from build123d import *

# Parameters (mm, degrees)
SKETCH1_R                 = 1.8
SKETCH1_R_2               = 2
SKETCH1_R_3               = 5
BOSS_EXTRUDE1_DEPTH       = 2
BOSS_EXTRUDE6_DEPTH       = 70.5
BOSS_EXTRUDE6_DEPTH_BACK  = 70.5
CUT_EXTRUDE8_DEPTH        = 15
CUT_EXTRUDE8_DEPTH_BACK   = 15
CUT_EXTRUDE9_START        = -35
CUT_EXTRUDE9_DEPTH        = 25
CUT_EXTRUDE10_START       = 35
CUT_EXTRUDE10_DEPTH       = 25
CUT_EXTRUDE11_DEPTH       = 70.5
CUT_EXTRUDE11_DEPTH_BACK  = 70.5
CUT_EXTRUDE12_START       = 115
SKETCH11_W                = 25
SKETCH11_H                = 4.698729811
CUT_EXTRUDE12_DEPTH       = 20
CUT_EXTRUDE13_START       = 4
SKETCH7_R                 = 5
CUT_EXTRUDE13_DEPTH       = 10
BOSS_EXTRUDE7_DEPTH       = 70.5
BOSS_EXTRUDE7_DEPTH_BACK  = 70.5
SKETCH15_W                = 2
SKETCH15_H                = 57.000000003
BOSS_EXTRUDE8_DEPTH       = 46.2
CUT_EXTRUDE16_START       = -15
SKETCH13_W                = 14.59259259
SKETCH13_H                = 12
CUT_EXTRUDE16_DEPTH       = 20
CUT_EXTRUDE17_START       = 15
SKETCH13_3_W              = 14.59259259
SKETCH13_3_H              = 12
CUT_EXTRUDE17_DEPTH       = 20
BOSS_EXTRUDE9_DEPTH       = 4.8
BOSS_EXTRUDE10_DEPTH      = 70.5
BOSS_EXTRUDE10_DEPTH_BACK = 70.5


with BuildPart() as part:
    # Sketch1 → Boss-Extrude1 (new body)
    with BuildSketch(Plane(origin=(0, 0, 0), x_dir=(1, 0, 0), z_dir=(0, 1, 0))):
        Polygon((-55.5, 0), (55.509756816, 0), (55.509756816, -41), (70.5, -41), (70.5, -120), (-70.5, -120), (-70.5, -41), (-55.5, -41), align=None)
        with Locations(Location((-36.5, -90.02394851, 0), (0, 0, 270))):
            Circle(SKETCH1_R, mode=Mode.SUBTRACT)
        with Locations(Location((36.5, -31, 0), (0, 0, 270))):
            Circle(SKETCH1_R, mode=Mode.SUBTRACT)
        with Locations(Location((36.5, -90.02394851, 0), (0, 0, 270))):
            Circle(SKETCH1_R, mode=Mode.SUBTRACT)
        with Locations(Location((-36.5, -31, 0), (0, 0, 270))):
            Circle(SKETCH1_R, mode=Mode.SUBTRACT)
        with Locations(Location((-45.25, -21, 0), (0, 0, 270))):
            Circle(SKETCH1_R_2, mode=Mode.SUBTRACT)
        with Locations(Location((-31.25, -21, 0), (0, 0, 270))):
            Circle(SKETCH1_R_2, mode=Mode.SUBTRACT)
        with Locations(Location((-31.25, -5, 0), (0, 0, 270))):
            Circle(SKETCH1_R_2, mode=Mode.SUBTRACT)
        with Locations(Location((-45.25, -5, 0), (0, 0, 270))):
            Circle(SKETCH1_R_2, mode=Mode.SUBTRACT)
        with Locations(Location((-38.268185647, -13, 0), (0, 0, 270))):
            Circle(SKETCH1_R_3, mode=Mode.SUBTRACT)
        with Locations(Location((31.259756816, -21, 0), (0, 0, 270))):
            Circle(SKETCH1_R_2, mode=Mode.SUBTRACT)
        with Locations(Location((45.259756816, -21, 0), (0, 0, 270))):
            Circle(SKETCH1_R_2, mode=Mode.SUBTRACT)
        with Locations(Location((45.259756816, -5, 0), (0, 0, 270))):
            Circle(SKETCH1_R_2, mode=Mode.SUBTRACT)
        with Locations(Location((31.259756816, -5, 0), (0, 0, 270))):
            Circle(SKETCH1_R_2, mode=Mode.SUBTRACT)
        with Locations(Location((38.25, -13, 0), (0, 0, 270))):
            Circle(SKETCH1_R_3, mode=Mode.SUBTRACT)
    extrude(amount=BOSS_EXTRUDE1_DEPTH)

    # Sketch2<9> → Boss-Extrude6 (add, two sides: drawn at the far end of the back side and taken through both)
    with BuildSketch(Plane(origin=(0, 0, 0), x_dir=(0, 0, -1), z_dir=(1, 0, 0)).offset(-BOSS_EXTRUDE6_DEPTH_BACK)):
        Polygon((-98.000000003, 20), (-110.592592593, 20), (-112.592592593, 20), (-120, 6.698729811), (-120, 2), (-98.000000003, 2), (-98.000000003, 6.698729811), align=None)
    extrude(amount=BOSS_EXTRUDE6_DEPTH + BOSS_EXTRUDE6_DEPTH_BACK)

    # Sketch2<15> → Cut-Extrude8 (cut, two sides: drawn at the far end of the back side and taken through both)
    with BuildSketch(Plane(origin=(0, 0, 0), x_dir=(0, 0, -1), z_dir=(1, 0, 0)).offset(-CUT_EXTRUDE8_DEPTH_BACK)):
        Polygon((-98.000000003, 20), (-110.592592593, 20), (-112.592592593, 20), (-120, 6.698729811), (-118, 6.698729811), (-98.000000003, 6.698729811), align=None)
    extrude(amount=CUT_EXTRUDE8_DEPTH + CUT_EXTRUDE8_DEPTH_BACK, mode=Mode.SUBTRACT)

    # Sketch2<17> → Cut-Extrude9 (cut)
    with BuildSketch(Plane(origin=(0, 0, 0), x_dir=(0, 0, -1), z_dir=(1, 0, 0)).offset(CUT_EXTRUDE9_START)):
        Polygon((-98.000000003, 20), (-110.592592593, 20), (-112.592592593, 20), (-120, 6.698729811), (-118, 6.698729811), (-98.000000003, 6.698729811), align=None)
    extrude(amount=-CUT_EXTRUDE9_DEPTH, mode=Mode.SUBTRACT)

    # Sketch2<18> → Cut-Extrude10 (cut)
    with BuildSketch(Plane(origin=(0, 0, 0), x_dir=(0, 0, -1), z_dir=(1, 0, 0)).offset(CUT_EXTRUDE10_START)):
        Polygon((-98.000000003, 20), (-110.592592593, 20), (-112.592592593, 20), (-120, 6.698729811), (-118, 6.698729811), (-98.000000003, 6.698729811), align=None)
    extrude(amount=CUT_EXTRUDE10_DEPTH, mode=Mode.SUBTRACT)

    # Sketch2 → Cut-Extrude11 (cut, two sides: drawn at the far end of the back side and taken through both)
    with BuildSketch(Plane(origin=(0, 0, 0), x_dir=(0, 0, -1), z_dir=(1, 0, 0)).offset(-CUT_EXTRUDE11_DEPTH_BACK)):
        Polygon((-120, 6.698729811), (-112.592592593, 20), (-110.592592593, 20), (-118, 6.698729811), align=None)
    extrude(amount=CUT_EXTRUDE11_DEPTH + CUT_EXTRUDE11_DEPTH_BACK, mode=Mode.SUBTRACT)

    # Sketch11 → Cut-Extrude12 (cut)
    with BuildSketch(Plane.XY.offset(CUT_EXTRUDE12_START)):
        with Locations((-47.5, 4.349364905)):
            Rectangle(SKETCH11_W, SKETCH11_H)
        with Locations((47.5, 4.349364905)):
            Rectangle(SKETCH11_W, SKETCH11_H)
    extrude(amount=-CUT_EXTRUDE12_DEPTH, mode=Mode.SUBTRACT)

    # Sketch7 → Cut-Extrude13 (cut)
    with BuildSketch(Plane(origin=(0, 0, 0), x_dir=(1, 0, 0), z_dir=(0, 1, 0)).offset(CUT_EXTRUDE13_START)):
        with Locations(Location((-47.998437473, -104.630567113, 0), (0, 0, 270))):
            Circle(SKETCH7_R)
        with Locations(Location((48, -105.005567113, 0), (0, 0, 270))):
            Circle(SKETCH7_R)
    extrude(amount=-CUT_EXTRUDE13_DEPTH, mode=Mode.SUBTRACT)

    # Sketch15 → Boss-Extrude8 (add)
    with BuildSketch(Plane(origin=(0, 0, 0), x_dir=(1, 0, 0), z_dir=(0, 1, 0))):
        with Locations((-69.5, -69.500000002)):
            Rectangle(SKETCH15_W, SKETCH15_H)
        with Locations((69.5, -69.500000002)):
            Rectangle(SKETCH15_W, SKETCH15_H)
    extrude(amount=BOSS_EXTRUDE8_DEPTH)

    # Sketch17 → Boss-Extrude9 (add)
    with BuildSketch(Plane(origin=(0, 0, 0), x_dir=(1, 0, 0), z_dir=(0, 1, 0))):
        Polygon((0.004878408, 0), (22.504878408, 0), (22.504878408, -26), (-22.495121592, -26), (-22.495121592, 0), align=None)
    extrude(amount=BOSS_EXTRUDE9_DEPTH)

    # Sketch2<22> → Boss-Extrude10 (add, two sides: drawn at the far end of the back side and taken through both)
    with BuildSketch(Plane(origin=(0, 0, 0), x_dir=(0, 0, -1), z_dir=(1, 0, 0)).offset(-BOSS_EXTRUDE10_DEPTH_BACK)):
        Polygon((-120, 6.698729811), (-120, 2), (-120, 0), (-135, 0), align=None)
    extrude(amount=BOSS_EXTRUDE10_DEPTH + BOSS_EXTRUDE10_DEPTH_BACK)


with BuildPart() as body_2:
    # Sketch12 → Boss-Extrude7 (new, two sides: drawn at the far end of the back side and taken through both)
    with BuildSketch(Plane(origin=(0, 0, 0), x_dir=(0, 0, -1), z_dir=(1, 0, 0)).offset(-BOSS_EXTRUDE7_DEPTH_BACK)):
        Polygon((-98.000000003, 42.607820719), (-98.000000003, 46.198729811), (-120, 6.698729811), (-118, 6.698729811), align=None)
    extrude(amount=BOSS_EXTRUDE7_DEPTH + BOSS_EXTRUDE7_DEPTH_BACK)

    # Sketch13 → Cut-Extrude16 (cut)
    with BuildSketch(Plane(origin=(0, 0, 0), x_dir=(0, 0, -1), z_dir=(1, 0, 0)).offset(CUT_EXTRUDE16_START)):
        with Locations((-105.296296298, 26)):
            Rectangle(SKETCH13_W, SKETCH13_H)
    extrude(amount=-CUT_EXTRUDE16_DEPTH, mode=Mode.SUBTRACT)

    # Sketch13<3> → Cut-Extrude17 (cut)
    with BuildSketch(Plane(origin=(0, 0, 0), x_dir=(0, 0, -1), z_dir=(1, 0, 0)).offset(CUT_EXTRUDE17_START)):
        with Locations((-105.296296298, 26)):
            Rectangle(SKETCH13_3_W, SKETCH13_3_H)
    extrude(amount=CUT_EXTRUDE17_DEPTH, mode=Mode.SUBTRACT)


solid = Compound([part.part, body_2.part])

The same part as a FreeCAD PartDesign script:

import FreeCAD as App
import Part
import Sketcher

V = App.Vector


def add_polygon(sketch, points):
    """Adds a closed chain of lines whose ends are joined by coincident constraints."""
    first, n = sketch.GeometryCount, len(points)
    for a, b in zip(points, points[1:] + points[:1]):
        sketch.addGeometry(Part.LineSegment(App.Vector(*a, 0), App.Vector(*b, 0)), False)
    for i in range(n):
        sketch.addConstraint(Sketcher.Constraint("Coincident", first + i, 2, first + (i + 1) % n, 1))

doc = App.newDocument("Part")
body = doc.addObject("PartDesign::Body", "Body")

# Sketch on XZ plane
sketch1 = doc.addObject("Sketcher::SketchObject", "Sketch")
body.addObject(sketch1)
sketch1.AttachmentSupport = (doc.XZ_Plane, [""])
sketch1.MapMode = "FlatFace"
add_polygon(sketch1, [(55.5, 0), (-55.5, 0), (-55.5, 41), (-70.5, 41), (-70.5, 120), (70.5, 120), (70.5, 41), (55.5, 41)])  # lines 0-7
sketch1.addGeometry(Part.Circle(V(36.5, 90, 0), V(0, 0, 1), 1.8), False)  # 8
sketch1.addGeometry(Part.Circle(V(-36.5, 90, 0), V(0, 0, 1), 1.8), False)  # 9
sketch1.addGeometry(Part.Circle(V(36.5, 31, 0), V(0, 0, 1), 1.8), False)  # 10
sketch1.addGeometry(Part.Circle(V(45.3, 21, 0), V(0, 0, 1), 2), False)  # 11
sketch1.addGeometry(Part.Circle(V(31.3, 21, 0), V(0, 0, 1), 2), False)  # 12
sketch1.addGeometry(Part.Circle(V(38.2, 13, 0), V(0, 0, 1), 5), False)  # 13
sketch1.addGeometry(Part.Circle(V(45.3, 5, 0), V(0, 0, 1), 2), False)  # 14
sketch1.addGeometry(Part.Circle(V(31.3, 5, 0), V(0, 0, 1), 2), False)  # 15
sketch1.addGeometry(Part.Circle(V(-36.5, 31, 0), V(0, 0, 1), 1.8), False)  # 16
sketch1.addGeometry(Part.Circle(V(-31.2, 21, 0), V(0, 0, 1), 2), False)  # 17
sketch1.addGeometry(Part.Circle(V(-45.2, 21, 0), V(0, 0, 1), 2), False)  # 18
sketch1.addGeometry(Part.Circle(V(-31.2, 5, 0), V(0, 0, 1), 2), False)  # 19
sketch1.addGeometry(Part.Circle(V(-38.3, 13, 0), V(0, 0, 1), 5), False)  # 20
sketch1.addGeometry(Part.Circle(V(-45.2, 5, 0), V(0, 0, 1), 2), False)  # 21
sketch1.addConstraint([
    Sketcher.Constraint("Horizontal", 0),
    Sketcher.Constraint("Vertical", 1),
    Sketcher.Constraint("Horizontal", 2),
    Sketcher.Constraint("Vertical", 3),
    Sketcher.Constraint("Horizontal", 4),
    Sketcher.Constraint("Vertical", 5),
    Sketcher.Constraint("Horizontal", 6),
    Sketcher.Constraint("Vertical", 7),
    Sketcher.Constraint("Equal", 8, 9),
    Sketcher.Constraint("Equal", 9, 10),
    Sketcher.Constraint("Equal", 11, 12),
    Sketcher.Constraint("Equal", 12, 14),
    Sketcher.Constraint("Equal", 14, 15),
    Sketcher.Constraint("Equal", 10, 16),
    Sketcher.Constraint("Equal", 15, 17),
    Sketcher.Constraint("Equal", 17, 18),
    Sketcher.Constraint("Equal", 18, 19),
    Sketcher.Constraint("Equal", 13, 20),
    Sketcher.Constraint("Equal", 19, 21),
    Sketcher.Constraint("Symmetric", 8, 3, 9, 3, -2),
    Sketcher.Constraint("Symmetric", 10, 3, 16, 3, -2),
    Sketcher.Constraint("Symmetric", 2, 2, 5, 2, -2),
    Sketcher.Constraint("PointOnObject", 0, 2, -1),
    Sketcher.Constraint("Horizontal", 11, 3, 12, 3),
    Sketcher.Constraint("Horizontal", 14, 3, 15, 3),
    Sketcher.Constraint("Horizontal", 12, 3, 17, 3),
    Sketcher.Constraint("Horizontal", 17, 3, 18, 3),
    Sketcher.Constraint("Horizontal", 15, 3, 19, 3),
    Sketcher.Constraint("Horizontal", 13, 3, 20, 3),
    Sketcher.Constraint("Horizontal", 19, 3, 21, 3),
    Sketcher.Constraint("Vertical", 8, 3, 10, 3),
    Sketcher.Constraint("Vertical", 11, 3, 14, 3),
    Sketcher.Constraint("Vertical", 12, 3, 15, 3),
    Sketcher.Constraint("Vertical", 17, 3, 19, 3),
    Sketcher.Constraint("Vertical", 18, 3, 21, 3),
    Sketcher.Constraint("Diameter", 11, 4.0),
    Sketcher.Constraint("Diameter", 13, 10.0),
    Sketcher.Constraint("Diameter", 8, 3.6),
    Sketcher.Constraint("DistanceX", 2, 2, 2, 1, 15.0),
    Sketcher.Constraint("DistanceX", 4, 1, 4, 2, 141.0),
    Sketcher.Constraint("DistanceY", 1, 1, 1, 2, 41.0),
    Sketcher.Constraint("DistanceY", 3, 1, 3, 2, 79.0),
    Sketcher.Constraint("DistanceY", -1, 1, 10, 3, 31.0),
    Sketcher.Constraint("DistanceY", -1, 1, 11, 3, 21.0),
    Sketcher.Constraint("DistanceY", -1, 1, 13, 3, 13.0),
    Sketcher.Constraint("DistanceY", -1, 1, 14, 3, 5.0),
    Sketcher.Constraint("DistanceX", 9, 3, 8, 3, 73.0),
    Sketcher.Constraint("DistanceX", 12, 3, 11, 3, 14.0),
    Sketcher.Constraint("DistanceX", 18, 3, 17, 3, 14.0),
    Sketcher.Constraint("DistanceX", -1, 1, 13, 3, 38.25),
    Sketcher.Constraint("DistanceX", 17, 3, -1, 1, 31.25),
    Sketcher.Constraint("DistanceX", 11, 3, 6, 2, 10.25),
    Sketcher.Constraint("DistanceX", 0, 2, 0, 1, 111.009757),
    Sketcher.Constraint("DistanceY", -1, 1, 8, 3, 90.023949),
    Sketcher.Constraint("DistanceX", 20, 3, -1, 1, 38.268186),
])
pad1 = doc.addObject("PartDesign::Pad", "Pad")
body.addObject(pad1)
pad1.Profile = sketch1
pad1.Length = 2
pad1.Reversed = True

# Sketch on YZ plane
sketch2 = doc.addObject("Sketcher::SketchObject", "Sketch001")
body.addObject(sketch2)
sketch2.AttachmentSupport = (doc.YZ_Plane, [""])
sketch2.MapMode = "FlatFace"
add_polygon(sketch2, [(20, 98), (20, 112.6), (6.7, 120), (2, 120), (2, 98)])  # lines 0-4
sketch2.addConstraint([
    Sketcher.Constraint("Vertical", 0),
    Sketcher.Constraint("Horizontal", 2),
    Sketcher.Constraint("Vertical", 3),
    Sketcher.Constraint("Horizontal", 4),
    Sketcher.Constraint("DistanceX", 4, 1, 4, 2, 18.0),
    Sketcher.Constraint("DistanceY", 3, 2, 3, 1, 22.0),
    Sketcher.Constraint("DistanceX", -1, 1, 0, 2, 20.0),
    Sketcher.Constraint("DistanceY", -1, 1, 1, 2, 120.0),
    Sketcher.Constraint("DistanceX", 2, 2, 2, 1, 4.69873),
    Sketcher.Constraint("DistanceY", 0, 1, 0, 2, 14.592593),
])
pad2 = doc.addObject("PartDesign::Pad", "Pad001")
body.addObject(pad2)
pad2.Profile = sketch2
pad2.Type = "TwoLengths"
pad2.Length = 70.5
pad2.Length2 = 70.5

# Sketch on YZ plane
sketch3 = doc.addObject("Sketcher::SketchObject", "Sketch002")
body.addObject(sketch3)
sketch3.AttachmentSupport = (doc.YZ_Plane, [""])
sketch3.MapMode = "FlatFace"
add_polygon(sketch3, [(20, 98), (20, 113), (7, 120), (7, 98)])  # lines 0-3
sketch3.addConstraint([
    Sketcher.Constraint("Vertical", 0),
    Sketcher.Constraint("Vertical", 2),
    Sketcher.Constraint("Horizontal", 3),
    Sketcher.Constraint("DistanceY", 2, 2, 2, 1, 22.0),
    Sketcher.Constraint("DistanceX", -1, 1, 0, 2, 20.0),
    Sketcher.Constraint("DistanceY", -1, 1, 1, 2, 120.0),
    Sketcher.Constraint("DistanceX", 3, 1, 3, 2, 13.30127),
    Sketcher.Constraint("DistanceY", 0, 1, 0, 2, 14.592593),
])
pocket1 = doc.addObject("PartDesign::Pocket", "Pocket")
body.addObject(pocket1)
pocket1.Profile = sketch3
pocket1.Type = "TwoLengths"
pocket1.Length = 15
pocket1.Length2 = 15
pocket1.Reversed = True

# Sketch on YZ plane
sketch4 = doc.addObject("Sketcher::SketchObject", "Sketch003")
body.addObject(sketch4)
sketch4.AttachmentSupport = (doc.YZ_Plane, [""])
sketch4.MapMode = "FlatFace"
sketch4.AttachmentOffset = App.Placement(V(0, 0, -35), App.Rotation())
add_polygon(sketch4, [(20, 98), (20, 113), (7, 120), (7, 98)])  # lines 0-3
sketch4.addConstraint([
    Sketcher.Constraint("Vertical", 0),
    Sketcher.Constraint("Vertical", 2),
    Sketcher.Constraint("Horizontal", 3),
    Sketcher.Constraint("DistanceY", 2, 2, 2, 1, 22.0),
    Sketcher.Constraint("DistanceX", -1, 1, 0, 2, 20.0),
    Sketcher.Constraint("DistanceY", -1, 1, 1, 2, 120.0),
    Sketcher.Constraint("DistanceX", 3, 1, 3, 2, 13.30127),
    Sketcher.Constraint("DistanceY", 0, 1, 0, 2, 14.592593),
])
pocket2 = doc.addObject("PartDesign::Pocket", "Pocket001")
body.addObject(pocket2)
pocket2.Profile = sketch4
pocket2.Length = 25

# Sketch on YZ plane
sketch5 = doc.addObject("Sketcher::SketchObject", "Sketch004")
body.addObject(sketch5)
sketch5.AttachmentSupport = (doc.YZ_Plane, [""])
sketch5.MapMode = "FlatFace"
sketch5.AttachmentOffset = App.Placement(V(0, 0, 35), App.Rotation())
add_polygon(sketch5, [(20, 98), (20, 113), (7, 120), (7, 98)])  # lines 0-3
sketch5.addConstraint([
    Sketcher.Constraint("Vertical", 0),
    Sketcher.Constraint("Vertical", 2),
    Sketcher.Constraint("Horizontal", 3),
    Sketcher.Constraint("DistanceY", 2, 2, 2, 1, 22.0),
    Sketcher.Constraint("DistanceX", -1, 1, 0, 2, 20.0),
    Sketcher.Constraint("DistanceY", -1, 1, 1, 2, 120.0),
    Sketcher.Constraint("DistanceX", 3, 1, 3, 2, 13.30127),
    Sketcher.Constraint("DistanceY", 0, 1, 0, 2, 14.592593),
])
pocket3 = doc.addObject("PartDesign::Pocket", "Pocket002")
body.addObject(pocket3)
pocket3.Profile = sketch5
pocket3.Length = 25
pocket3.Reversed = True

# Sketch on YZ plane
sketch6 = doc.addObject("Sketcher::SketchObject", "Sketch005")
body.addObject(sketch6)
sketch6.AttachmentSupport = (doc.YZ_Plane, [""])
sketch6.MapMode = "FlatFace"
add_polygon(sketch6, [(20, 112.6), (6.7, 120), (6.7, 118), (20, 110.6)])  # lines 0-3
sketch6.addConstraint([
    Sketcher.Constraint("Vertical", 1),
    Sketcher.Constraint("Vertical", 3),
    Sketcher.Constraint("Parallel", 0, 2),
    Sketcher.Constraint("DistanceY", 1, 2, 1, 1, 2.0),
    Sketcher.Constraint("DistanceY", -1, 1, 0, 2, 120.0),
    Sketcher.Constraint("DistanceX", -1, 1, 2, 2, 20.0),
    Sketcher.Constraint("DistanceX", -1, 1, 0, 2, 6.69873),
    Sketcher.Constraint("Distance", 0, 15.224765),
])
pocket4 = doc.addObject("PartDesign::Pocket", "Pocket003")
body.addObject(pocket4)
pocket4.Profile = sketch6
pocket4.Type = "ThroughAll"
pocket4.Midplane = True

# Sketch on XY plane
sketch7 = doc.addObject("Sketcher::SketchObject", "Sketch006")
body.addObject(sketch7)
sketch7.AttachmentSupport = (doc.XY_Plane, [""])
sketch7.MapMode = "FlatFace"
sketch7.AttachmentOffset = App.Placement(V(0, 0, 115), App.Rotation())
add_polygon(sketch7, [(-60, 6.7), (-60, 2), (-35, 2), (-35, 6.7)])  # lines 0-3
add_polygon(sketch7, [(35, 6.7), (35, 2), (60, 2), (60, 6.7)])  # lines 4-7
sketch7.addConstraint([
    Sketcher.Constraint("Vertical", 0),
    Sketcher.Constraint("Horizontal", 1),
    Sketcher.Constraint("Vertical", 2),
    Sketcher.Constraint("Horizontal", 3),
    Sketcher.Constraint("Vertical", 4),
    Sketcher.Constraint("Horizontal", 5),
    Sketcher.Constraint("Vertical", 6),
    Sketcher.Constraint("Horizontal", 7),
    Sketcher.Constraint("Symmetric", 1, 2, 4, 2, -2),
    Sketcher.Constraint("Symmetric", 3, 2, 6, 2, -2),
    Sketcher.Constraint("DistanceX", 1, 1, 1, 2, 25.0),
    Sketcher.Constraint("DistanceX", 0, 2, -1, 1, 60.0),
    Sketcher.Constraint("DistanceY", -1, 1, 0, 2, 2.0),
    Sketcher.Constraint("DistanceY", 0, 2, 0, 1, 4.69873),
])
pocket5 = doc.addObject("PartDesign::Pocket", "Pocket004")
body.addObject(pocket5)
pocket5.Profile = sketch7
pocket5.Length = 20

# Sketch on XZ plane
sketch8 = doc.addObject("Sketcher::SketchObject", "Sketch007")
body.addObject(sketch8)
sketch8.AttachmentSupport = (doc.XZ_Plane, [""])
sketch8.MapMode = "FlatFace"
sketch8.AttachmentOffset = App.Placement(V(0, 0, -4), App.Rotation())
sketch8.addGeometry([
    Part.Circle(V(-48, 105, 0), V(0, 0, 1), 5),
    Part.Circle(V(48, 105, 0), V(0, 0, 1), 5),
], False)
sketch8.addConstraint([
    Sketcher.Constraint("Equal", 0, 1),
    Sketcher.Constraint("Diameter", 0, 10.0),
    Sketcher.Constraint("DistanceX", -1, 1, 1, 3, 48.0),
    Sketcher.Constraint("DistanceY", 0, 3, 1, 3, 0.375),
    Sketcher.Constraint("DistanceX", 0, 3, -1, 1, 47.998437),
    Sketcher.Constraint("DistanceY", -1, 1, 0, 3, 104.630567),
])
pocket6 = doc.addObject("PartDesign::Pocket", "Pocket005")
body.addObject(pocket6)
pocket6.Profile = sketch8
pocket6.Length = 10
pocket6.Reversed = True

# Sketch on XZ plane
sketch9 = doc.addObject("Sketcher::SketchObject", "Sketch008")
body.addObject(sketch9)
sketch9.AttachmentSupport = (doc.XZ_Plane, [""])
sketch9.MapMode = "FlatFace"
add_polygon(sketch9, [(-70.5, 41), (-70.5, 98), (-68.5, 98), (-68.5, 41)])  # lines 0-3
add_polygon(sketch9, [(68.5, 41), (68.5, 98), (70.5, 98), (70.5, 41)])  # lines 4-7
sketch9.addConstraint([
    Sketcher.Constraint("Vertical", 0),
    Sketcher.Constraint("Horizontal", 1),
    Sketcher.Constraint("Vertical", 2),
    Sketcher.Constraint("Horizontal", 3),
    Sketcher.Constraint("Vertical", 4),
    Sketcher.Constraint("Horizontal", 5),
    Sketcher.Constraint("Vertical", 6),
    Sketcher.Constraint("Horizontal", 7),
    Sketcher.Constraint("Symmetric", 1, 2, 4, 2, -2),
    Sketcher.Constraint("Symmetric", 3, 2, 6, 2, -2),
    Sketcher.Constraint("DistanceX", 1, 1, 1, 2, 2.0),
    Sketcher.Constraint("DistanceY", 0, 1, 0, 2, 57.0),
    Sketcher.Constraint("DistanceY", -1, 1, 0, 2, 98.0),
    Sketcher.Constraint("DistanceX", 1, 2, 4, 2, 137.0),
])
pad3 = doc.addObject("PartDesign::Pad", "Pad002")
body.addObject(pad3)
pad3.Profile = sketch9
pad3.Length = 46.2
pad3.Reversed = True

# Sketch on XZ plane
sketch10 = doc.addObject("Sketcher::SketchObject", "Sketch009")
body.addObject(sketch10)
sketch10.AttachmentSupport = (doc.XZ_Plane, [""])
sketch10.MapMode = "FlatFace"
add_polygon(sketch10, [(23, 0), (-22, 0), (-22, 26), (23, 26)])  # lines 0-3
sketch10.addConstraint([
    Sketcher.Constraint("Horizontal", 0),
    Sketcher.Constraint("Vertical", 1),
    Sketcher.Constraint("Horizontal", 2),
    Sketcher.Constraint("Vertical", 3),
    Sketcher.Constraint("PointOnObject", 0, 2, -1),
    Sketcher.Constraint("DistanceX", 0, 2, 0, 1, 45.0),
    Sketcher.Constraint("DistanceY", 1, 1, 1, 2, 26.0),
    Sketcher.Constraint("DistanceX", 0, 2, -1, 1, 22.495122),
])
pad4 = doc.addObject("PartDesign::Pad", "Pad003")
body.addObject(pad4)
pad4.Profile = sketch10
pad4.Length = 4.8
pad4.Reversed = True

# Sketch on YZ plane
sketch11 = doc.addObject("Sketcher::SketchObject", "Sketch010")
body.addObject(sketch11)
sketch11.AttachmentSupport = (doc.YZ_Plane, [""])
sketch11.MapMode = "FlatFace"
add_polygon(sketch11, [(0, 120), (7, 120), (0, 135)])  # lines 0-2
sketch11.addConstraint([
    Sketcher.Constraint("Horizontal", 0),
    Sketcher.Constraint("Vertical", 2),
    Sketcher.Constraint("PointOnObject", 1, 2, -2),
    Sketcher.Constraint("DistanceY", 2, 2, 2, 1, 15.0),
    Sketcher.Constraint("DistanceY", -1, 1, 0, 2, 120.0),
    Sketcher.Constraint("DistanceX", 0, 1, 0, 2, 6.69873),
])
pad5 = doc.addObject("PartDesign::Pad", "Pad004")
body.addObject(pad5)
pad5.Profile = sketch11
pad5.Type = "TwoLengths"
pad5.Length = 70.5
pad5.Length2 = 70.5
body2 = doc.addObject("PartDesign::Body", "Body001")

# Sketch on YZ plane
sketch12 = doc.addObject("Sketcher::SketchObject", "Sketch011")
body2.addObject(sketch12)
sketch12.AttachmentSupport = (doc.getObject("YZ_Plane001"), [""])
sketch12.MapMode = "FlatFace"
add_polygon(sketch12, [(42.6, 98), (46.2, 98), (6.7, 120), (6.7, 118)])  # lines 0-3
sketch12.addConstraint([
    Sketcher.Constraint("Horizontal", 0),
    Sketcher.Constraint("Vertical", 2),
    Sketcher.Constraint("Parallel", 1, 3),
    Sketcher.Constraint("DistanceY", 2, 2, 2, 1, 2.0),
    Sketcher.Constraint("DistanceY", -1, 1, 0, 2, 98.0),
    Sketcher.Constraint("DistanceY", -1, 1, 1, 2, 120.0),
    Sketcher.Constraint("DistanceX", 1, 2, 0, 2, 39.5),
    Sketcher.Constraint("DistanceX", -1, 1, 0, 2, 46.19873),
])
pad6 = doc.addObject("PartDesign::Pad", "Pad005")
body2.addObject(pad6)
pad6.Profile = sketch12
pad6.Type = "TwoLengths"
pad6.Length = 70.5
pad6.Length2 = 70.5

# Sketch on YZ plane
sketch13 = doc.addObject("Sketcher::SketchObject", "Sketch012")
body2.addObject(sketch13)
sketch13.AttachmentSupport = (doc.getObject("YZ_Plane001"), [""])
sketch13.MapMode = "FlatFace"
sketch13.AttachmentOffset = App.Placement(V(0, 0, -15), App.Rotation())
add_polygon(sketch13, [(32, 113), (20, 113), (20, 98), (32, 98)])  # lines 0-3
sketch13.addConstraint([
    Sketcher.Constraint("Horizontal", 0),
    Sketcher.Constraint("Vertical", 1),
    Sketcher.Constraint("Horizontal", 2),
    Sketcher.Constraint("Vertical", 3),
    Sketcher.Constraint("DistanceX", 0, 2, 0, 1, 12.0),
    Sketcher.Constraint("DistanceX", -1, 1, 0, 2, 20.0),
    Sketcher.Constraint("DistanceY", -1, 1, 1, 2, 98.0),
    Sketcher.Constraint("DistanceY", 1, 2, 1, 1, 14.592593),
])
pocket7 = doc.addObject("PartDesign::Pocket", "Pocket006")
body2.addObject(pocket7)
pocket7.Profile = sketch13
pocket7.Length = 20

# Sketch on YZ plane
sketch14 = doc.addObject("Sketcher::SketchObject", "Sketch013")
body2.addObject(sketch14)
sketch14.AttachmentSupport = (doc.getObject("YZ_Plane001"), [""])
sketch14.MapMode = "FlatFace"
sketch14.AttachmentOffset = App.Placement(V(0, 0, 15), App.Rotation())
add_polygon(sketch14, [(32, 113), (20, 113), (20, 98), (32, 98)])  # lines 0-3
sketch14.addConstraint([
    Sketcher.Constraint("Horizontal", 0),
    Sketcher.Constraint("Vertical", 1),
    Sketcher.Constraint("Horizontal", 2),
    Sketcher.Constraint("Vertical", 3),
    Sketcher.Constraint("DistanceX", 0, 2, 0, 1, 12.0),
    Sketcher.Constraint("DistanceX", -1, 1, 0, 2, 20.0),
    Sketcher.Constraint("DistanceY", -1, 1, 1, 2, 98.0),
    Sketcher.Constraint("DistanceY", 1, 2, 1, 1, 14.592593),
])
pocket8 = doc.addObject("PartDesign::Pocket", "Pocket007")
body2.addObject(pocket8)
pocket8.Profile = sketch14
pocket8.Length = 20
pocket8.Reversed = True

doc.recompute()
